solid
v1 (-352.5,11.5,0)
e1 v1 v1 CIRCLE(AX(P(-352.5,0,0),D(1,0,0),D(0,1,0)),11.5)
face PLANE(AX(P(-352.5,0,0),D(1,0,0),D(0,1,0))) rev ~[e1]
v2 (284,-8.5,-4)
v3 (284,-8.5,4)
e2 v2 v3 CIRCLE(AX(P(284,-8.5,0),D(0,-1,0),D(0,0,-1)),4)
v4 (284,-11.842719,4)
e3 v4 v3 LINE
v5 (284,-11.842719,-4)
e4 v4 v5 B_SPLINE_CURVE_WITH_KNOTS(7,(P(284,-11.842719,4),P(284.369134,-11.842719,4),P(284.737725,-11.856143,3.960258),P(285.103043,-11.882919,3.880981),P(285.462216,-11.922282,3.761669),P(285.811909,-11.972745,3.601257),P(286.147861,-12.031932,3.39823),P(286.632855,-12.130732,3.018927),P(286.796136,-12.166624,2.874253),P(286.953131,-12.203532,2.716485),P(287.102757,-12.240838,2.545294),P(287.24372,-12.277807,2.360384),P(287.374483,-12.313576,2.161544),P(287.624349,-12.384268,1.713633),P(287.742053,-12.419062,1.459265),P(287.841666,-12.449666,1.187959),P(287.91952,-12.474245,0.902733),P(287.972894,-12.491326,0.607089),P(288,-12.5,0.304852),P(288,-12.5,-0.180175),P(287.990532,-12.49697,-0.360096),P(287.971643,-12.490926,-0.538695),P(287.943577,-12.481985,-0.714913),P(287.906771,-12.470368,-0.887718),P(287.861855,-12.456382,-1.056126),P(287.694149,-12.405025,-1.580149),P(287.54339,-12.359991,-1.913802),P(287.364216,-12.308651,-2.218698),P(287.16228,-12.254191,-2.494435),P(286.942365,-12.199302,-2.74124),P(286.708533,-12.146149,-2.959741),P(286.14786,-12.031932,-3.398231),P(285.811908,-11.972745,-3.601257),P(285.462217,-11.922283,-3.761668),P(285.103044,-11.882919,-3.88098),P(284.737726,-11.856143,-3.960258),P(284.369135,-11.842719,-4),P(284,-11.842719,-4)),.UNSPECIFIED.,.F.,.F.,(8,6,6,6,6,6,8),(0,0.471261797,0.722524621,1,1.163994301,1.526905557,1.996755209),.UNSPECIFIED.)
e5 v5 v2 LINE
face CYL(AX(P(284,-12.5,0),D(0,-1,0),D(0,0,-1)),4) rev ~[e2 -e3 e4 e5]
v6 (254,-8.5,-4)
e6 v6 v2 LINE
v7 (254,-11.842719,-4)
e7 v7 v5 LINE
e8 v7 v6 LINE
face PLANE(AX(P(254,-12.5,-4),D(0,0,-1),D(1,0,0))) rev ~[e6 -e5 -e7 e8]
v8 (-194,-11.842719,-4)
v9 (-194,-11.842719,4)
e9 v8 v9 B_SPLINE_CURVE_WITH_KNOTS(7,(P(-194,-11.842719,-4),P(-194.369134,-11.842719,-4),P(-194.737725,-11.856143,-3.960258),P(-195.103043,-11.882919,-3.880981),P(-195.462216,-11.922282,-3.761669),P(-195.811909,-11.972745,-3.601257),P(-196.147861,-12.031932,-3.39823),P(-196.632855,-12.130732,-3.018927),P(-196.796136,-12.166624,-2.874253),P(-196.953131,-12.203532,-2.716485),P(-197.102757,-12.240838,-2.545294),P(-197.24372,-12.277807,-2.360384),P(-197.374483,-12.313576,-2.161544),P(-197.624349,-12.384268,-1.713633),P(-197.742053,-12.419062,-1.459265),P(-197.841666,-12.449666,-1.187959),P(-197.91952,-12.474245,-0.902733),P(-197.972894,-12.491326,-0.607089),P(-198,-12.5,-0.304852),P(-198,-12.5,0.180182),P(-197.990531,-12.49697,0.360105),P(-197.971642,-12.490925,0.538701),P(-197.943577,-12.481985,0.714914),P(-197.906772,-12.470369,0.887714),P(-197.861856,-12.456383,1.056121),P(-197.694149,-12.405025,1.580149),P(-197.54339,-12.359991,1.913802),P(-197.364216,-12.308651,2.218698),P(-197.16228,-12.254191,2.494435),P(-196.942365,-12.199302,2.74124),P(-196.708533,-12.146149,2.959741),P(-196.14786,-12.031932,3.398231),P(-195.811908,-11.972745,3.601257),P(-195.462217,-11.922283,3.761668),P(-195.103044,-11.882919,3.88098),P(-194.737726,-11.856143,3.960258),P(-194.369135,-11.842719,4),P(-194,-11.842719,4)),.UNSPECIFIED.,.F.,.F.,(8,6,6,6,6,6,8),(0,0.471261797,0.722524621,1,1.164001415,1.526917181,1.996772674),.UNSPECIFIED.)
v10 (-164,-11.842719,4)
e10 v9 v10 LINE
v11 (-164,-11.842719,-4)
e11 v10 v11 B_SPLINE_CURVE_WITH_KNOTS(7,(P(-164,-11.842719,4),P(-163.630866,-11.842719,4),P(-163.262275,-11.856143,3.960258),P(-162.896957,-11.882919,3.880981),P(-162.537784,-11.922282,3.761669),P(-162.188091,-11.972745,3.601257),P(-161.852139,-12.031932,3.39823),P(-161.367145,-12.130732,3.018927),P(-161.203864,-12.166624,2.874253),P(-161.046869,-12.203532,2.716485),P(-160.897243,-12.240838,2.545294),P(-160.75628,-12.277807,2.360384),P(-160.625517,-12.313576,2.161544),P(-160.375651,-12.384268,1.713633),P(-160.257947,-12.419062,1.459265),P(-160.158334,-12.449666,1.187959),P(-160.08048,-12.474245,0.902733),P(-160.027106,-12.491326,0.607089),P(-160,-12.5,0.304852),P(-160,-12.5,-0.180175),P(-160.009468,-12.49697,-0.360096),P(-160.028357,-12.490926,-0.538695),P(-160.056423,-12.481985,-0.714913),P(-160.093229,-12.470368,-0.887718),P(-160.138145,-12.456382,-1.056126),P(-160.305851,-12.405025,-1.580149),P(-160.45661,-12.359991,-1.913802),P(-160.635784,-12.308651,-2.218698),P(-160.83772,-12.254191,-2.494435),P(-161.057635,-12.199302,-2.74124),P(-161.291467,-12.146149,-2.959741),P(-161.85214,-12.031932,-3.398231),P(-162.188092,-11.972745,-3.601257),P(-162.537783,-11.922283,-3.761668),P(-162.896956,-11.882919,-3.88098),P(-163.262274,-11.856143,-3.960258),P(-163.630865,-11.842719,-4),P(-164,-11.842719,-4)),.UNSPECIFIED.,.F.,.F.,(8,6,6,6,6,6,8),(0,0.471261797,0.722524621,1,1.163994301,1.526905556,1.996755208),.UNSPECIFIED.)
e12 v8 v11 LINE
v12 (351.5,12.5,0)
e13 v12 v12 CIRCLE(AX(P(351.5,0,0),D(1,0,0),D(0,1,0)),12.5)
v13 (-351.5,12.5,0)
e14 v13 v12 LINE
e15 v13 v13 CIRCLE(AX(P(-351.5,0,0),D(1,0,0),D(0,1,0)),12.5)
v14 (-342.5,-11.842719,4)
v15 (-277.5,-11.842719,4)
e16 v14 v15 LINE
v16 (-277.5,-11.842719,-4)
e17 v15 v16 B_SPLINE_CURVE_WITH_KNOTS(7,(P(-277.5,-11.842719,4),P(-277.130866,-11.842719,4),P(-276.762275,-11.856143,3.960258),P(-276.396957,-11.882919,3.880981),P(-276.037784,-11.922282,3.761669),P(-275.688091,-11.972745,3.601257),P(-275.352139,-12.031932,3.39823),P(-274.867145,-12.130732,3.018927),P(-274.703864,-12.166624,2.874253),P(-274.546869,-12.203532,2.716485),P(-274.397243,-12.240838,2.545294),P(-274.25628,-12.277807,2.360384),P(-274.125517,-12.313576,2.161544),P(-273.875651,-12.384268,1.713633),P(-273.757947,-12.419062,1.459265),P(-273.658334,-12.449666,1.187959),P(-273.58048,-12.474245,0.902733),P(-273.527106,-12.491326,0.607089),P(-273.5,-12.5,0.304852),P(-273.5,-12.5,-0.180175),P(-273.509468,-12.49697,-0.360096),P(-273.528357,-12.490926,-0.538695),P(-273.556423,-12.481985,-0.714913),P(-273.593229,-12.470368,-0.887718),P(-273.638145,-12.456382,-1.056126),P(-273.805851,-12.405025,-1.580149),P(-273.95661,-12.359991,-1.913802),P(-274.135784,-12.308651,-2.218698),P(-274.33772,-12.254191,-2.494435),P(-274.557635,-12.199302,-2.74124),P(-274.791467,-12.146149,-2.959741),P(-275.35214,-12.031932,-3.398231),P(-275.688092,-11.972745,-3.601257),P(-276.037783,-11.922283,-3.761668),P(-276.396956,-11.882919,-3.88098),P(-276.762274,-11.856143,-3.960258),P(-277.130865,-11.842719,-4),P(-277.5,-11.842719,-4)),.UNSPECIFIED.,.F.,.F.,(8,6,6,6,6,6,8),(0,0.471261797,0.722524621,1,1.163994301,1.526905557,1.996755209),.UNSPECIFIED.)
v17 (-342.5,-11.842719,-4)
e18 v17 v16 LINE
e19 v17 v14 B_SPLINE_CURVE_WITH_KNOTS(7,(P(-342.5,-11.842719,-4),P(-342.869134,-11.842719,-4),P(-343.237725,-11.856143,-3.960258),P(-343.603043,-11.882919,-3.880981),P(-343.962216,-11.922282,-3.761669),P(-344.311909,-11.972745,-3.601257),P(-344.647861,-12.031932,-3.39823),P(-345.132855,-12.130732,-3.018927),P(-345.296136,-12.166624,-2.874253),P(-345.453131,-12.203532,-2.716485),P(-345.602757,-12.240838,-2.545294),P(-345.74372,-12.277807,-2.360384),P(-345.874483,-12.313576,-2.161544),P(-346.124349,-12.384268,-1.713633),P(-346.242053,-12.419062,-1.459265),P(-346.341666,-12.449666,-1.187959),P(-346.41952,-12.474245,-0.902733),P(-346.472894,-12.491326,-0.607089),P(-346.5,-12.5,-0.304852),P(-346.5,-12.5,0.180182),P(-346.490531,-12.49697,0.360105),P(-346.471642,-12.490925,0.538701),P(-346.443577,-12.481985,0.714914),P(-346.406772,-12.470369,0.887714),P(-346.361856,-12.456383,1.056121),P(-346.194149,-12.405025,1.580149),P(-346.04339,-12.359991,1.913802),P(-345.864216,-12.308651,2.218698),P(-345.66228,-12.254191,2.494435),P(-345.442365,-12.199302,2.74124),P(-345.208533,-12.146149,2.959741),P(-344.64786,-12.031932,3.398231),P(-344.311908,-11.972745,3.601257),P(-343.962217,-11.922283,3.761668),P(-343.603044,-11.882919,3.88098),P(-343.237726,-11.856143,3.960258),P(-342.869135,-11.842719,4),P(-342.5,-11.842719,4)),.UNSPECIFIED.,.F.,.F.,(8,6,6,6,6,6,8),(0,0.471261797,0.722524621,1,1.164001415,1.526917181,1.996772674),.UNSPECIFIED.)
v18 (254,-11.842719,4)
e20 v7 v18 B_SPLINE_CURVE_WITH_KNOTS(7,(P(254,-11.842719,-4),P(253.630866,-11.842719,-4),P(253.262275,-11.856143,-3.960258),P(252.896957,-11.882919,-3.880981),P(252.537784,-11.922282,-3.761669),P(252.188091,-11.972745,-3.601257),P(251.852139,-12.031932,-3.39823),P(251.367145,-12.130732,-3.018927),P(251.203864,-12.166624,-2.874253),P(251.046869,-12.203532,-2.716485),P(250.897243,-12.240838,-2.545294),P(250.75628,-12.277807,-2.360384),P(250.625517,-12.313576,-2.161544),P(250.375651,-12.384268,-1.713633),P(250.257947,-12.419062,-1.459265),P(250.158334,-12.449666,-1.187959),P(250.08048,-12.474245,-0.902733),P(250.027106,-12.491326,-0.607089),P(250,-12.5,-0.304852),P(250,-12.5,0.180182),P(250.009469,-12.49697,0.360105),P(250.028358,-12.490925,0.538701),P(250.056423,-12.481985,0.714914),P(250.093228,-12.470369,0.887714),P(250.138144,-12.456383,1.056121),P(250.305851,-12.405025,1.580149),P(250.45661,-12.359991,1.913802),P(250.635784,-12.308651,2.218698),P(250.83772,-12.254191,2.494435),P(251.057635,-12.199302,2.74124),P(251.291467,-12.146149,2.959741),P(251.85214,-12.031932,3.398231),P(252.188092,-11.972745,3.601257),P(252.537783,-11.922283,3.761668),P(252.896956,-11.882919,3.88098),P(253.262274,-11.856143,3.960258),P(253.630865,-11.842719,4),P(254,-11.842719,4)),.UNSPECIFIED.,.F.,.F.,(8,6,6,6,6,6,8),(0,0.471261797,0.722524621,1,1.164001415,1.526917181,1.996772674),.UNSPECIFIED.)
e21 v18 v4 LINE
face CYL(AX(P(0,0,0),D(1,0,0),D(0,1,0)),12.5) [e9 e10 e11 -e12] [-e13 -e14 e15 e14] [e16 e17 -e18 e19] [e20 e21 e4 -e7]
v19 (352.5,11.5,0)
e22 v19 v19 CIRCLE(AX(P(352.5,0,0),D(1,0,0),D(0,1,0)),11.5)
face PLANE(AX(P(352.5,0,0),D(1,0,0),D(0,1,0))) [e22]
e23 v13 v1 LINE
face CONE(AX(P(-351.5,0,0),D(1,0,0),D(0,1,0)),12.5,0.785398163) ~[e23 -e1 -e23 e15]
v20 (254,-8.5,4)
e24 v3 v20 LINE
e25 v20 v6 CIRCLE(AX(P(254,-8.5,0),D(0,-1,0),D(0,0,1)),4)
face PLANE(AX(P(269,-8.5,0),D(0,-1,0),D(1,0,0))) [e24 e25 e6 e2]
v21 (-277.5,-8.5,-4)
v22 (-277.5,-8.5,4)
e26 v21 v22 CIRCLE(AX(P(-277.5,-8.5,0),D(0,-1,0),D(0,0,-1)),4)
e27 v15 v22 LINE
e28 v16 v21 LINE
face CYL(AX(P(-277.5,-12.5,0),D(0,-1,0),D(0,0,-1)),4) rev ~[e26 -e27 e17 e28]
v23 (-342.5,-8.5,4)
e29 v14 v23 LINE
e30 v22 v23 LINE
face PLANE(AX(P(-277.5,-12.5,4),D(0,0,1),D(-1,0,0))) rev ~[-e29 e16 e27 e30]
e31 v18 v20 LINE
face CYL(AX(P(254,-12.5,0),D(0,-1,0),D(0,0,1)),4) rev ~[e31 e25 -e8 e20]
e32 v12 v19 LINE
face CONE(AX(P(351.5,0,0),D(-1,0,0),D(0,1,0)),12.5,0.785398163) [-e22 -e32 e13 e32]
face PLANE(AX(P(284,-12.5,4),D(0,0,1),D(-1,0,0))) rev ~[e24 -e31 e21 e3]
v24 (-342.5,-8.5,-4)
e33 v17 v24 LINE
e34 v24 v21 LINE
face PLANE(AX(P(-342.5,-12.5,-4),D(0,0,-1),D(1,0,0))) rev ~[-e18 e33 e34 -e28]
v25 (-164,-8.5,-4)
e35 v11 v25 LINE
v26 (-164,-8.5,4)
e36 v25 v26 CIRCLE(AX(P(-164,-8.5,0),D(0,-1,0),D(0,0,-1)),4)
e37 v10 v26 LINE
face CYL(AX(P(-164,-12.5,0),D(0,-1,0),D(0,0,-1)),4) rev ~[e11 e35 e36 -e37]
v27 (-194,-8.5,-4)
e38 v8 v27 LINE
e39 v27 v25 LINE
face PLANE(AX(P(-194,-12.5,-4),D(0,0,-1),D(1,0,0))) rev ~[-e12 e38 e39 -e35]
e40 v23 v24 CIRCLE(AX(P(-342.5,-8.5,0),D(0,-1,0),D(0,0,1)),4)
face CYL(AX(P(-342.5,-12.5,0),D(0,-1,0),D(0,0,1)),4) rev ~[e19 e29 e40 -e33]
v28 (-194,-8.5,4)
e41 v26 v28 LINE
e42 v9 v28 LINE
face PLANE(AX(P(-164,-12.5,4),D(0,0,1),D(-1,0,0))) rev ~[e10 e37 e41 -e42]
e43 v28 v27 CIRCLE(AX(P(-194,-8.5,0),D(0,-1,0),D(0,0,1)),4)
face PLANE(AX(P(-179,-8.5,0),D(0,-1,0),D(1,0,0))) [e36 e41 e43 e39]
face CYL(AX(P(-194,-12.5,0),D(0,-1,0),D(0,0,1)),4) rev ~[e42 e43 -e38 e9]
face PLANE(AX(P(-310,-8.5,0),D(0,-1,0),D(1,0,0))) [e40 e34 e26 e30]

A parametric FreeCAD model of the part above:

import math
import FreeCAD as App
import Part
import Sketcher
Q = App.Units.Quantity


def edges_at(feature, points):
    """Names of the edges that pass closest to the given points."""
    edges = feature.Shape.Edges
    near = lambda p: min(range(len(edges)), key=lambda i: edges[i].distToShape(Part.Vertex(*p))[0])
    return sorted({f"Edge{near(p) + 1}" for p in points})

doc = App.newDocument("Part")
params = doc.addObject("Spreadsheet::Sheet", "Params")
for row, (alias, value) in enumerate([
    ("sketch1_diameter", "25 mm"),
    ("pad1_length", "705 mm"),
    ("sketch2_radius", "4 mm"),
    ("sketch2_width", "65 mm"),
    ("sketch2_width2", "30 mm"),
    ("pocket1_length", "4 mm"),
    ("chamfer_size", "1 mm"),
], start=1):
    params.set(f"A{row}", alias)
    params.set(f"B{row}", "=" + value)
    params.setAlias(f"B{row}", alias)

body = doc.addObject("PartDesign::Body", "Body")

sketch1 = body.newObject("Sketcher::SketchObject", "Sketch")
sketch1.AttachmentSupport = (doc.getObject("YZ_Plane"), [""])
sketch1.MapMode = "FlatFace"
sketch1.addGeometry(Part.Circle(App.Vector(0, 0, 0), App.Vector(0, 0, 1), 12), False)
sketch1.addConstraint([
    Sketcher.Constraint("Coincident", 0, 3, -1, 1),
    Sketcher.Constraint("Diameter", 0, Q("25 mm")),
])
sketch1.setExpression("Constraints[1]", "Params.sketch1_diameter")
pad1 = body.newObject("PartDesign::Pad", "Pad")
pad1.Profile = sketch1
pad1.setExpression("Length", "Params.pad1_length")
pad1.Midplane = True

sketch2 = body.newObject("Sketcher::SketchObject", "Sketch001")
sketch2.AttachmentSupport = (doc.getObject("XZ_Plane"), [""])
sketch2.MapMode = "FlatFace"
sketch2.AttachmentOffset = App.Placement(App.Vector(0, 0, 12.5), App.Rotation())
sketch2.addGeometry([
    Part.ArcOfCircle(Part.Circle(App.Vector(-342.5, 0, 0), App.Vector(0, 0, 1), 4), math.radians(90), math.radians(270)),
    Part.LineSegment(App.Vector(-342.5, -4, 0), App.Vector(-277.5, -4, 0)),
    Part.ArcOfCircle(Part.Circle(App.Vector(-277.5, 0, 0), App.Vector(0, 0, 1), 4), math.radians(-90), math.radians(90)),
    Part.LineSegment(App.Vector(-277.5, 4, 0), App.Vector(-342.5, 4, 0)),
    Part.ArcOfCircle(Part.Circle(App.Vector(-194, 0, 0), App.Vector(0, 0, 1), 4), math.radians(90), math.radians(270)),
    Part.LineSegment(App.Vector(-194, -4, 0), App.Vector(-164, -4, 0)),
    Part.ArcOfCircle(Part.Circle(App.Vector(-164, 0, 0), App.Vector(0, 0, 1), 4), math.radians(-90), math.radians(90)),
    Part.LineSegment(App.Vector(-164, 4, 0), App.Vector(-194, 4, 0)),
    Part.ArcOfCircle(Part.Circle(App.Vector(254, 0, 0), App.Vector(0, 0, 1), 4), math.radians(90), math.radians(270)),
    Part.LineSegment(App.Vector(254, -4, 0), App.Vector(284, -4, 0)),
    Part.ArcOfCircle(Part.Circle(App.Vector(284, 0, 0), App.Vector(0, 0, 1), 4), math.radians(-90), math.radians(90)),
    Part.LineSegment(App.Vector(284, 4, 0), App.Vector(254, 4, 0)),
], False)
sketch2.addConstraint([
    Sketcher.Constraint("Tangent", 0, 2, 1, 1),
    Sketcher.Constraint("Tangent", 1, 2, 2, 1),
    Sketcher.Constraint("Tangent", 2, 2, 3, 1),
    Sketcher.Constraint("Tangent", 3, 2, 0, 1),
    Sketcher.Constraint("Tangent", 4, 2, 5, 1),
    Sketcher.Constraint("Tangent", 5, 2, 6, 1),
    Sketcher.Constraint("Tangent", 6, 2, 7, 1),
    Sketcher.Constraint("Tangent", 7, 2, 4, 1),
    Sketcher.Constraint("Tangent", 8, 2, 9, 1),
    Sketcher.Constraint("Tangent", 9, 2, 10, 1),
    Sketcher.Constraint("Tangent", 10, 2, 11, 1),
    Sketcher.Constraint("Tangent", 11, 2, 8, 1),
    Sketcher.Constraint("Horizontal", 1),
    Sketcher.Constraint("Horizontal", 3),
    Sketcher.Constraint("Horizontal", 5),
    Sketcher.Constraint("Horizontal", 7),
    Sketcher.Constraint("Horizontal", 9),
    Sketcher.Constraint("Horizontal", 11),
    Sketcher.Constraint("Equal", 2, 4),
    Sketcher.Constraint("Equal", 6, 8),
    Sketcher.Constraint("PointOnObject", 0, 3, -1),
    Sketcher.Constraint("PointOnObject", 4, 3, -1),
    Sketcher.Constraint("PointOnObject", 8, 3, -1),
    Sketcher.Constraint("Equal", 7, 9),
    Sketcher.Constraint("Radius", 0, Q("4 mm")),
    Sketcher.Constraint("DistanceX", 1, 1, 1, 2, Q("65 mm")),
    Sketcher.Constraint("DistanceX", 5, 1, 5, 2, Q("30 mm")),
    Sketcher.Constraint("DistanceX", 4, 3, -1, 1, Q("194 mm")),
    Sketcher.Constraint("DistanceX", -1, 1, 8, 3, Q("254 mm")),
    Sketcher.Constraint("DistanceX", 0, 3, -1, 1, Q("342.5 mm")),
])
sketch2.setExpression("Constraints[24]", "Params.sketch2_radius")
sketch2.setExpression("Constraints[25]", "Params.sketch2_width")
sketch2.setExpression("Constraints[26]", "Params.sketch2_width2")
pocket1 = body.newObject("PartDesign::Pocket", "Pocket")
pocket1.Profile = sketch2
pocket1.setExpression("Length", "Params.pocket1_length")
doc.recompute()

chamfer = body.newObject("PartDesign::Chamfer", "Chamfer")
chamfer.Base = (pocket1, edges_at(pocket1, [(352.5, -12.5, 0), (-352.5, -12.5, 0)]))
chamfer.setExpression("Size", "Params.chamfer_size")

doc.recompute()
